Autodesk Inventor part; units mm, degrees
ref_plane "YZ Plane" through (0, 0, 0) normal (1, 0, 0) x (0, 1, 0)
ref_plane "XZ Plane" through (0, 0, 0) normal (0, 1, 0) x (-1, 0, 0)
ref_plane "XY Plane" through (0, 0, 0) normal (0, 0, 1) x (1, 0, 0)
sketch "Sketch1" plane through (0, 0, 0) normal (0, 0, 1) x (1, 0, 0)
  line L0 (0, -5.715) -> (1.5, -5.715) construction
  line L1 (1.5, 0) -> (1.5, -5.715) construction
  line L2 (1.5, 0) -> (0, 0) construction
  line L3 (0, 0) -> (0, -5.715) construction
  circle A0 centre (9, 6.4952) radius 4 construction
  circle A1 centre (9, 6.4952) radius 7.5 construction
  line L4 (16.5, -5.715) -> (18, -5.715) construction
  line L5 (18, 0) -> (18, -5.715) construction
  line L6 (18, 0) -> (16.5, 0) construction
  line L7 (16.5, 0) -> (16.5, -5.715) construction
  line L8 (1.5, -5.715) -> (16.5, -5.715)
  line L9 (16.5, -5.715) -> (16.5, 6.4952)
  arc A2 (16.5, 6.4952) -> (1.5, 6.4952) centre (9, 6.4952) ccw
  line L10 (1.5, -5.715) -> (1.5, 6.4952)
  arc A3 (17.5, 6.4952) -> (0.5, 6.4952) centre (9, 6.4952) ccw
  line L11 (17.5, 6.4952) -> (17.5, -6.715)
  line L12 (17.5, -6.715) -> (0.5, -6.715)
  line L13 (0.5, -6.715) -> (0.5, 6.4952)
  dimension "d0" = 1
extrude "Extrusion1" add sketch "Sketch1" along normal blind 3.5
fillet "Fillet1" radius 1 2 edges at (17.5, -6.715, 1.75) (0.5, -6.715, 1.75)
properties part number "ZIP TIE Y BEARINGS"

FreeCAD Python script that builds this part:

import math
import FreeCAD as App
import Part
import Sketcher


def edges_at(feature, points):
    """Names of the edges that pass closest to the given points."""
    edges = feature.Shape.Edges
    near = lambda p: min(range(len(edges)), key=lambda i: edges[i].distToShape(Part.Vertex(*p))[0])
    return sorted({f"Edge{near(p) + 1}" for p in points})

doc = App.newDocument("Part")
body = doc.addObject("PartDesign::Body", "Body")

sketch1 = body.newObject("Sketcher::SketchObject", "Sketch")
sketch1.AttachmentSupport = (doc.getObject("XY_Plane"), [""])
sketch1.MapMode = "FlatFace"
sketch1.addGeometry([
    Part.LineSegment(App.Vector(18, -7, 0), App.Vector(18, 6, 0)),
    Part.ArcOfCircle(Part.Circle(App.Vector(9, 6, 0), App.Vector(0, 0, 1), 8), math.radians(0), math.radians(180)),
    Part.LineSegment(App.Vector(0, 6, 0), App.Vector(0, -7, 0)),
    Part.LineSegment(App.Vector(0, -7, 0), App.Vector(18, -7, 0)),
    Part.LineSegment(App.Vector(16, -6, 0), App.Vector(2, -6, 0)),
    Part.LineSegment(App.Vector(2, -6, 0), App.Vector(2, 6, 0)),
    Part.ArcOfCircle(Part.Circle(App.Vector(9, 6, 0), App.Vector(0, 0, 1), 8), math.radians(0), math.radians(180)),
    Part.LineSegment(App.Vector(16, 6, 0), App.Vector(16, -6, 0)),
], False)
sketch1.addConstraint([
    Sketcher.Constraint("Tangent", 0, 2, 1, 1),
    Sketcher.Constraint("Tangent", 1, 2, 2, 1),
    Sketcher.Constraint("Coincident", 2, 2, 3, 1),
    Sketcher.Constraint("Coincident", 3, 2, 0, 1),
    Sketcher.Constraint("Coincident", 4, 2, 5, 1),
    Sketcher.Constraint("Tangent", 5, 2, 6, 2),
    Sketcher.Constraint("Tangent", 6, 1, 7, 1),
    Sketcher.Constraint("Coincident", 7, 2, 4, 1),
    Sketcher.Constraint("Vertical", 0),
    Sketcher.Constraint("Vertical", 2),
    Sketcher.Constraint("Horizontal", 3),
    Sketcher.Constraint("Horizontal", 4),
    Sketcher.Constraint("Vertical", 5),
    Sketcher.Constraint("Vertical", 7),
    Sketcher.Constraint("Coincident", 6, 3, 1, 3),
    Sketcher.Constraint("DistanceX", 2, 2, 4, 2, 1.0),
    Sketcher.Constraint("DistanceY", 2, 2, 4, 2, 1.0),
    Sketcher.Constraint("Radius", 1, 8.5),
    Sketcher.Constraint("DistanceX", -1, 1, 1, 3, 9.0),
    Sketcher.Constraint("DistanceY", 0, 1, 0, 2, 13.2102),
    Sketcher.Constraint("DistanceY", 2, 2, -1, 1, 6.715),
])
pad1 = body.newObject("PartDesign::Pad", "Pad")
pad1.Profile = sketch1
pad1.Length = 3.5
doc.recompute()

fillet = body.newObject("PartDesign::Fillet", "Fillet")
fillet.Base = (pad1, edges_at(pad1, [(17.5, -6.715, 1.75), (0.5, -6.715, 1.75)]))
fillet.Radius = 1

doc.recompute()
